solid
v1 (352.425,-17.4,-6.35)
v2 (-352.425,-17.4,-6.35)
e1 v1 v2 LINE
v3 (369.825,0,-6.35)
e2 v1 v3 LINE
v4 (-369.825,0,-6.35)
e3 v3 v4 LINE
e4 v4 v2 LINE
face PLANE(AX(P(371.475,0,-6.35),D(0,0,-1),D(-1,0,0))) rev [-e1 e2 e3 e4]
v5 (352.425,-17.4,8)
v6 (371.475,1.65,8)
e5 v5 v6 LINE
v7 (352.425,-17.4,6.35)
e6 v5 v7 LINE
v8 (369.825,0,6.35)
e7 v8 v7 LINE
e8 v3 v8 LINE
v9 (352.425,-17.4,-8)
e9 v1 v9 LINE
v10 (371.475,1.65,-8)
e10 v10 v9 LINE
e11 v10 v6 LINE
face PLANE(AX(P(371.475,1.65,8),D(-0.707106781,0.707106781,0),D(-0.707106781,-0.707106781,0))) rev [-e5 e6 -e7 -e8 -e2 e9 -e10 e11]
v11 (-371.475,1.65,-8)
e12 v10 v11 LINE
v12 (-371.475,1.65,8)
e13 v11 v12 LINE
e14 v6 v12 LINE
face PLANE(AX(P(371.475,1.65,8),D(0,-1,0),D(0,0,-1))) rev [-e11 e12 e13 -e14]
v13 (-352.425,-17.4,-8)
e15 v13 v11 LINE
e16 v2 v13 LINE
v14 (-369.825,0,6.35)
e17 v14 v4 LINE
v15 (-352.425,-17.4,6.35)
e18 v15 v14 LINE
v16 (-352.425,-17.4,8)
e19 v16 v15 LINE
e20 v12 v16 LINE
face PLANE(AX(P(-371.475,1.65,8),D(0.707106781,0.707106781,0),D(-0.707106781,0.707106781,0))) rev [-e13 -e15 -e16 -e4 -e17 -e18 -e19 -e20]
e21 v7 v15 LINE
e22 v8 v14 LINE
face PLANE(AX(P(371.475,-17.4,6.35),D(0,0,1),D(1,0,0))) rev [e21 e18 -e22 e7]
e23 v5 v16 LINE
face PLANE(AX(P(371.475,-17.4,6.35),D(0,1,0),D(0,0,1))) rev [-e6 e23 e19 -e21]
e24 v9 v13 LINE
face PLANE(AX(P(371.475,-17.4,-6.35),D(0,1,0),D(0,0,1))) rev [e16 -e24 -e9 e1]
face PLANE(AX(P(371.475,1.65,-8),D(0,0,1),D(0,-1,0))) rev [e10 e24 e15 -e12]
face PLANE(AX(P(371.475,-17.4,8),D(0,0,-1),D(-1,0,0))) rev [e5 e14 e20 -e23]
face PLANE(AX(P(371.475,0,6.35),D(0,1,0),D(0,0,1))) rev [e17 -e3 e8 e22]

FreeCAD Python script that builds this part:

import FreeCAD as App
import Part
import Sketcher


def add_polygon(sketch, points):
    """Adds a closed chain of lines whose ends are joined by coincident constraints."""
    first, n = sketch.GeometryCount, len(points)
    for a, b in zip(points, points[1:] + points[:1]):
        sketch.addGeometry(Part.LineSegment(App.Vector(*a, 0), App.Vector(*b, 0)), False)
    for i in range(n):
        sketch.addConstraint(Sketcher.Constraint("Coincident", first + i, 2, first + (i + 1) % n, 1))

doc = App.newDocument("Part")
body = doc.addObject("PartDesign::Body", "Body")

# Sketch on YZ plane
sketch1 = doc.addObject("Sketcher::SketchObject", "Sketch")
body.addObject(sketch1)
sketch1.AttachmentSupport = (doc.YZ_Plane, [""])
sketch1.MapMode = "FlatFace"
add_polygon(sketch1, [(0, 6.3), (0, -6.3), (-17.4, -6.3), (-17.4, -8), (1.6, -8), (1.6, 8), (-17.4, 8), (-17.4, 6.3)])  # lines 0-7
sketch1.addConstraint([
    Sketcher.Constraint("Vertical", 0),
    Sketcher.Constraint("Horizontal", 1),
    Sketcher.Constraint("Vertical", 2),
    Sketcher.Constraint("Horizontal", 3),
    Sketcher.Constraint("Vertical", 4),
    Sketcher.Constraint("Horizontal", 5),
    Sketcher.Constraint("Vertical", 6),
    Sketcher.Constraint("Horizontal", 7),
    Sketcher.Constraint("Symmetric", 0, 2, 7, 2, -1, 1),
    Sketcher.Constraint("Symmetric", 2, 2, 5, 2, -1),
    Sketcher.Constraint("DistanceY", 4, 1, 4, 2, 16.0),
    Sketcher.Constraint("DistanceX", 1, 2, 1, 1, 17.4),
    Sketcher.Constraint("DistanceY", 0, 2, 0, 1, 12.7),
    Sketcher.Constraint("DistanceX", 3, 1, 3, 2, 19.05),
])
pad1 = doc.addObject("PartDesign::Pad", "Pad")
body.addObject(pad1)
pad1.Profile = sketch1
pad1.Length = 742.95
pad1.Midplane = True

# Sketch on XY plane
sketch2 = doc.addObject("Sketcher::SketchObject", "Sketch001")
body.addObject(sketch2)
sketch2.AttachmentSupport = (doc.XY_Plane, [""])
sketch2.MapMode = "FlatFace"
sketch2.AttachmentOffset = App.Placement(App.Vector(0, 0, -8), App.Rotation())
add_polygon(sketch2, [(352, -17), (371, 2), (371, -17)])  # lines 0-2
sketch2.addConstraint([
    Sketcher.Constraint("Vertical", 1),
    Sketcher.Constraint("Horizontal", 2),
    Sketcher.Constraint("Equal", 2, 1),
    Sketcher.Constraint("DistanceX", 2, 2, 2, 1, 19.05),
    Sketcher.Constraint("DistanceY", 1, 2, -1, 1, 17.4),
    Sketcher.Constraint("DistanceX", -1, 1, 0, 2, 371.475),
])
pocket1 = doc.addObject("PartDesign::Pocket", "Pocket")
body.addObject(pocket1)
pocket1.Profile = sketch2
pocket1.Type = "ThroughAll"
pocket1.Midplane = True

# Sketch on XY plane
sketch3 = doc.addObject("Sketcher::SketchObject", "Sketch002")
body.addObject(sketch3)
sketch3.AttachmentSupport = (doc.XY_Plane, [""])
sketch3.MapMode = "FlatFace"
sketch3.AttachmentOffset = App.Placement(App.Vector(0, 0, -8), App.Rotation())
add_polygon(sketch3, [(-371, 2), (-352, -17), (-371, -17)])  # lines 0-2
sketch3.addConstraint([
    Sketcher.Constraint("Horizontal", 1),
    Sketcher.Constraint("Vertical", 2),
    Sketcher.Constraint("Equal", 1, 2),
    Sketcher.Constraint("DistanceX", 1, 2, 1, 1, 19.05),
    Sketcher.Constraint("DistanceY", 0, 2, -1, 1, 17.4),
    Sketcher.Constraint("DistanceX", 0, 2, -1, 1, 352.425),
])
pocket2 = doc.addObject("PartDesign::Pocket", "Pocket001")
body.addObject(pocket2)
pocket2.Profile = sketch3
pocket2.Type = "ThroughAll"
pocket2.Midplane = True

doc.recompute()
